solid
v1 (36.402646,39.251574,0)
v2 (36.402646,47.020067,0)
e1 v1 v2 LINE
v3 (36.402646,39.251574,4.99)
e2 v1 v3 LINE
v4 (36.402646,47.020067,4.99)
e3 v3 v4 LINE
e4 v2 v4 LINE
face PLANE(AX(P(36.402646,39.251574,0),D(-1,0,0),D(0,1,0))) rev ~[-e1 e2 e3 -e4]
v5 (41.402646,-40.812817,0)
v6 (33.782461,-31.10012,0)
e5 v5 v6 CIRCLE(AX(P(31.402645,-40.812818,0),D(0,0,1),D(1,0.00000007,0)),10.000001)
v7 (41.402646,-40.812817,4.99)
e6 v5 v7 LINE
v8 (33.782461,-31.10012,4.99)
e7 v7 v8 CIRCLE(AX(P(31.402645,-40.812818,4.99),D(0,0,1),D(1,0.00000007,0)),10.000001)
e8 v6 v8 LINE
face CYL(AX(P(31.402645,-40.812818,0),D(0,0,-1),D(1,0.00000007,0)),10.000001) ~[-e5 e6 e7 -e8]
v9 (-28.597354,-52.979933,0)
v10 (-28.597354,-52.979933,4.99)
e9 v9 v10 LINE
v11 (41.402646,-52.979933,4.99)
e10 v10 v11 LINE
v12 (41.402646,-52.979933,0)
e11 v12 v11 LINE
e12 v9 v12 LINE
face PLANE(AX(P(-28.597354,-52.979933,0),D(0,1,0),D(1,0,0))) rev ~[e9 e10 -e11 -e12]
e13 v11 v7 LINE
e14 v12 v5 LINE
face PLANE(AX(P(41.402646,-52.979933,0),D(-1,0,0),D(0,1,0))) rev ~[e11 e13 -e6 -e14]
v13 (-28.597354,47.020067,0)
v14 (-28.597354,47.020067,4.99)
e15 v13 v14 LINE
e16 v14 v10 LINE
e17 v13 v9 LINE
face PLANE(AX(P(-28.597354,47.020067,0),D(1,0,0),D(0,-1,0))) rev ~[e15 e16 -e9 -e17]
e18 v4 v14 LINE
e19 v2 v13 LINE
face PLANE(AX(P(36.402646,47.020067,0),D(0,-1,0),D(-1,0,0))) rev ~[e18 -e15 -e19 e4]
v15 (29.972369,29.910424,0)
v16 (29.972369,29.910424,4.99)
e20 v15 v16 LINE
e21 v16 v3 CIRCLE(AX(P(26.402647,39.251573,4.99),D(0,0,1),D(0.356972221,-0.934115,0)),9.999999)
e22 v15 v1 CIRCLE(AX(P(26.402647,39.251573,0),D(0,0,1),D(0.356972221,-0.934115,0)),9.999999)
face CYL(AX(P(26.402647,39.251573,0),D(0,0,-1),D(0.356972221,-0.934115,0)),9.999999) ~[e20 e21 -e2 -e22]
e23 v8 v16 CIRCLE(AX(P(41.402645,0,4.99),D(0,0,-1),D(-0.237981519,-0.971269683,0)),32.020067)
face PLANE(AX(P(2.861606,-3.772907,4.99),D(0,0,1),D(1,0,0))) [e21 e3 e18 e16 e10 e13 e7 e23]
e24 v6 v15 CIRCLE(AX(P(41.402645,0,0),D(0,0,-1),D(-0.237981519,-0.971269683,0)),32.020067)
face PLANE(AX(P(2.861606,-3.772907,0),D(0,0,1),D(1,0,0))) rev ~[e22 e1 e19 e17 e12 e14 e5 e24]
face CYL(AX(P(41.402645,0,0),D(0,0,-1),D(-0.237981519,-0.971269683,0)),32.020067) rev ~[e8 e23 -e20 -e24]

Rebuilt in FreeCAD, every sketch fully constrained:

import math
import FreeCAD as App
import Part
import Sketcher

V = App.Vector
Q = App.Units.Quantity

doc = App.newDocument("Part")
body = doc.addObject("PartDesign::Body", "Body")

# Sketch on XY plane
sketch1 = body.newObject("Sketcher::SketchObject", "Sketch")
sketch1.AttachmentSupport = (doc.getObject("XY_Plane"), [""])
sketch1.MapMode = "FlatFace"
sketch1.addGeometry([
    Part.LineSegment(V(36, 47, 0), V(-29, 47, 0)),  # 0
    Part.LineSegment(V(-29, 47, 0), V(-29, -53, 0)),  # 1
    Part.LineSegment(V(-29, -53, 0), V(41, -53, 0)),  # 2
    Part.LineSegment(V(41, -53, 0), V(41, -41, 0)),  # 3
    Part.ArcOfCircle(Part.Circle(V(31, -41, 0), V(0, 0, 1), 10), math.radians(0), math.radians(76)),  # 4
    Part.ArcOfCircle(Part.Circle(V(41, 0, 0), V(0, 0, 1), 32), math.radians(111), math.radians(256)),  # 5
    Part.ArcOfCircle(Part.Circle(V(26, 39, 0), V(0, 0, 1), 10), math.radians(-69), math.radians(0)),  # 6
    Part.LineSegment(V(36, 39, 0), V(36, 47, 0)),  # 7
], False)
sketch1.addConstraint([
    Sketcher.Constraint("Coincident", 0, 2, 1, 1),
    Sketcher.Constraint("Coincident", 1, 2, 2, 1),
    Sketcher.Constraint("Coincident", 2, 2, 3, 1),
    Sketcher.Constraint("Tangent", 3, 2, 4, 1),
    Sketcher.Constraint("Tangent", 4, 2, 5, 2),
    Sketcher.Constraint("Tangent", 5, 1, 6, 1),
    Sketcher.Constraint("Tangent", 6, 2, 7, 1),
    Sketcher.Constraint("Coincident", 7, 2, 0, 1),
    Sketcher.Constraint("Horizontal", 0),
    Sketcher.Constraint("Vertical", 1),
    Sketcher.Constraint("Horizontal", 2),
    Sketcher.Constraint("Vertical", 3),
    Sketcher.Constraint("Vertical", 7),
    Sketcher.Constraint("PointOnObject", 5, 3, -1),
    Sketcher.Constraint("Vertical", 5, 3, 2, 2),
    Sketcher.Constraint("Radius", 4, Q("10.000001 mm")),
    Sketcher.Constraint("Radius", 6, Q("9.999999 mm")),
    Sketcher.Constraint("DistanceX", 0, 2, 0, 1, Q("65 mm")),
    Sketcher.Constraint("DistanceX", 2, 1, 2, 2, Q("70 mm")),
    Sketcher.Constraint("DistanceY", 1, 2, 1, 1, Q("100 mm")),
    Sketcher.Constraint("Radius", 5, Q("32.020067 mm")),
    Sketcher.Constraint("DistanceY", 3, 1, 3, 2, Q("12.167116 mm")),
    Sketcher.Constraint("DistanceX", -1, 1, 4, 2, Q("33.782461 mm")),
])
pad1 = body.newObject("PartDesign::Pad", "Pad")
pad1.Profile = sketch1
pad1.Length = 4.99

doc.recompute()
